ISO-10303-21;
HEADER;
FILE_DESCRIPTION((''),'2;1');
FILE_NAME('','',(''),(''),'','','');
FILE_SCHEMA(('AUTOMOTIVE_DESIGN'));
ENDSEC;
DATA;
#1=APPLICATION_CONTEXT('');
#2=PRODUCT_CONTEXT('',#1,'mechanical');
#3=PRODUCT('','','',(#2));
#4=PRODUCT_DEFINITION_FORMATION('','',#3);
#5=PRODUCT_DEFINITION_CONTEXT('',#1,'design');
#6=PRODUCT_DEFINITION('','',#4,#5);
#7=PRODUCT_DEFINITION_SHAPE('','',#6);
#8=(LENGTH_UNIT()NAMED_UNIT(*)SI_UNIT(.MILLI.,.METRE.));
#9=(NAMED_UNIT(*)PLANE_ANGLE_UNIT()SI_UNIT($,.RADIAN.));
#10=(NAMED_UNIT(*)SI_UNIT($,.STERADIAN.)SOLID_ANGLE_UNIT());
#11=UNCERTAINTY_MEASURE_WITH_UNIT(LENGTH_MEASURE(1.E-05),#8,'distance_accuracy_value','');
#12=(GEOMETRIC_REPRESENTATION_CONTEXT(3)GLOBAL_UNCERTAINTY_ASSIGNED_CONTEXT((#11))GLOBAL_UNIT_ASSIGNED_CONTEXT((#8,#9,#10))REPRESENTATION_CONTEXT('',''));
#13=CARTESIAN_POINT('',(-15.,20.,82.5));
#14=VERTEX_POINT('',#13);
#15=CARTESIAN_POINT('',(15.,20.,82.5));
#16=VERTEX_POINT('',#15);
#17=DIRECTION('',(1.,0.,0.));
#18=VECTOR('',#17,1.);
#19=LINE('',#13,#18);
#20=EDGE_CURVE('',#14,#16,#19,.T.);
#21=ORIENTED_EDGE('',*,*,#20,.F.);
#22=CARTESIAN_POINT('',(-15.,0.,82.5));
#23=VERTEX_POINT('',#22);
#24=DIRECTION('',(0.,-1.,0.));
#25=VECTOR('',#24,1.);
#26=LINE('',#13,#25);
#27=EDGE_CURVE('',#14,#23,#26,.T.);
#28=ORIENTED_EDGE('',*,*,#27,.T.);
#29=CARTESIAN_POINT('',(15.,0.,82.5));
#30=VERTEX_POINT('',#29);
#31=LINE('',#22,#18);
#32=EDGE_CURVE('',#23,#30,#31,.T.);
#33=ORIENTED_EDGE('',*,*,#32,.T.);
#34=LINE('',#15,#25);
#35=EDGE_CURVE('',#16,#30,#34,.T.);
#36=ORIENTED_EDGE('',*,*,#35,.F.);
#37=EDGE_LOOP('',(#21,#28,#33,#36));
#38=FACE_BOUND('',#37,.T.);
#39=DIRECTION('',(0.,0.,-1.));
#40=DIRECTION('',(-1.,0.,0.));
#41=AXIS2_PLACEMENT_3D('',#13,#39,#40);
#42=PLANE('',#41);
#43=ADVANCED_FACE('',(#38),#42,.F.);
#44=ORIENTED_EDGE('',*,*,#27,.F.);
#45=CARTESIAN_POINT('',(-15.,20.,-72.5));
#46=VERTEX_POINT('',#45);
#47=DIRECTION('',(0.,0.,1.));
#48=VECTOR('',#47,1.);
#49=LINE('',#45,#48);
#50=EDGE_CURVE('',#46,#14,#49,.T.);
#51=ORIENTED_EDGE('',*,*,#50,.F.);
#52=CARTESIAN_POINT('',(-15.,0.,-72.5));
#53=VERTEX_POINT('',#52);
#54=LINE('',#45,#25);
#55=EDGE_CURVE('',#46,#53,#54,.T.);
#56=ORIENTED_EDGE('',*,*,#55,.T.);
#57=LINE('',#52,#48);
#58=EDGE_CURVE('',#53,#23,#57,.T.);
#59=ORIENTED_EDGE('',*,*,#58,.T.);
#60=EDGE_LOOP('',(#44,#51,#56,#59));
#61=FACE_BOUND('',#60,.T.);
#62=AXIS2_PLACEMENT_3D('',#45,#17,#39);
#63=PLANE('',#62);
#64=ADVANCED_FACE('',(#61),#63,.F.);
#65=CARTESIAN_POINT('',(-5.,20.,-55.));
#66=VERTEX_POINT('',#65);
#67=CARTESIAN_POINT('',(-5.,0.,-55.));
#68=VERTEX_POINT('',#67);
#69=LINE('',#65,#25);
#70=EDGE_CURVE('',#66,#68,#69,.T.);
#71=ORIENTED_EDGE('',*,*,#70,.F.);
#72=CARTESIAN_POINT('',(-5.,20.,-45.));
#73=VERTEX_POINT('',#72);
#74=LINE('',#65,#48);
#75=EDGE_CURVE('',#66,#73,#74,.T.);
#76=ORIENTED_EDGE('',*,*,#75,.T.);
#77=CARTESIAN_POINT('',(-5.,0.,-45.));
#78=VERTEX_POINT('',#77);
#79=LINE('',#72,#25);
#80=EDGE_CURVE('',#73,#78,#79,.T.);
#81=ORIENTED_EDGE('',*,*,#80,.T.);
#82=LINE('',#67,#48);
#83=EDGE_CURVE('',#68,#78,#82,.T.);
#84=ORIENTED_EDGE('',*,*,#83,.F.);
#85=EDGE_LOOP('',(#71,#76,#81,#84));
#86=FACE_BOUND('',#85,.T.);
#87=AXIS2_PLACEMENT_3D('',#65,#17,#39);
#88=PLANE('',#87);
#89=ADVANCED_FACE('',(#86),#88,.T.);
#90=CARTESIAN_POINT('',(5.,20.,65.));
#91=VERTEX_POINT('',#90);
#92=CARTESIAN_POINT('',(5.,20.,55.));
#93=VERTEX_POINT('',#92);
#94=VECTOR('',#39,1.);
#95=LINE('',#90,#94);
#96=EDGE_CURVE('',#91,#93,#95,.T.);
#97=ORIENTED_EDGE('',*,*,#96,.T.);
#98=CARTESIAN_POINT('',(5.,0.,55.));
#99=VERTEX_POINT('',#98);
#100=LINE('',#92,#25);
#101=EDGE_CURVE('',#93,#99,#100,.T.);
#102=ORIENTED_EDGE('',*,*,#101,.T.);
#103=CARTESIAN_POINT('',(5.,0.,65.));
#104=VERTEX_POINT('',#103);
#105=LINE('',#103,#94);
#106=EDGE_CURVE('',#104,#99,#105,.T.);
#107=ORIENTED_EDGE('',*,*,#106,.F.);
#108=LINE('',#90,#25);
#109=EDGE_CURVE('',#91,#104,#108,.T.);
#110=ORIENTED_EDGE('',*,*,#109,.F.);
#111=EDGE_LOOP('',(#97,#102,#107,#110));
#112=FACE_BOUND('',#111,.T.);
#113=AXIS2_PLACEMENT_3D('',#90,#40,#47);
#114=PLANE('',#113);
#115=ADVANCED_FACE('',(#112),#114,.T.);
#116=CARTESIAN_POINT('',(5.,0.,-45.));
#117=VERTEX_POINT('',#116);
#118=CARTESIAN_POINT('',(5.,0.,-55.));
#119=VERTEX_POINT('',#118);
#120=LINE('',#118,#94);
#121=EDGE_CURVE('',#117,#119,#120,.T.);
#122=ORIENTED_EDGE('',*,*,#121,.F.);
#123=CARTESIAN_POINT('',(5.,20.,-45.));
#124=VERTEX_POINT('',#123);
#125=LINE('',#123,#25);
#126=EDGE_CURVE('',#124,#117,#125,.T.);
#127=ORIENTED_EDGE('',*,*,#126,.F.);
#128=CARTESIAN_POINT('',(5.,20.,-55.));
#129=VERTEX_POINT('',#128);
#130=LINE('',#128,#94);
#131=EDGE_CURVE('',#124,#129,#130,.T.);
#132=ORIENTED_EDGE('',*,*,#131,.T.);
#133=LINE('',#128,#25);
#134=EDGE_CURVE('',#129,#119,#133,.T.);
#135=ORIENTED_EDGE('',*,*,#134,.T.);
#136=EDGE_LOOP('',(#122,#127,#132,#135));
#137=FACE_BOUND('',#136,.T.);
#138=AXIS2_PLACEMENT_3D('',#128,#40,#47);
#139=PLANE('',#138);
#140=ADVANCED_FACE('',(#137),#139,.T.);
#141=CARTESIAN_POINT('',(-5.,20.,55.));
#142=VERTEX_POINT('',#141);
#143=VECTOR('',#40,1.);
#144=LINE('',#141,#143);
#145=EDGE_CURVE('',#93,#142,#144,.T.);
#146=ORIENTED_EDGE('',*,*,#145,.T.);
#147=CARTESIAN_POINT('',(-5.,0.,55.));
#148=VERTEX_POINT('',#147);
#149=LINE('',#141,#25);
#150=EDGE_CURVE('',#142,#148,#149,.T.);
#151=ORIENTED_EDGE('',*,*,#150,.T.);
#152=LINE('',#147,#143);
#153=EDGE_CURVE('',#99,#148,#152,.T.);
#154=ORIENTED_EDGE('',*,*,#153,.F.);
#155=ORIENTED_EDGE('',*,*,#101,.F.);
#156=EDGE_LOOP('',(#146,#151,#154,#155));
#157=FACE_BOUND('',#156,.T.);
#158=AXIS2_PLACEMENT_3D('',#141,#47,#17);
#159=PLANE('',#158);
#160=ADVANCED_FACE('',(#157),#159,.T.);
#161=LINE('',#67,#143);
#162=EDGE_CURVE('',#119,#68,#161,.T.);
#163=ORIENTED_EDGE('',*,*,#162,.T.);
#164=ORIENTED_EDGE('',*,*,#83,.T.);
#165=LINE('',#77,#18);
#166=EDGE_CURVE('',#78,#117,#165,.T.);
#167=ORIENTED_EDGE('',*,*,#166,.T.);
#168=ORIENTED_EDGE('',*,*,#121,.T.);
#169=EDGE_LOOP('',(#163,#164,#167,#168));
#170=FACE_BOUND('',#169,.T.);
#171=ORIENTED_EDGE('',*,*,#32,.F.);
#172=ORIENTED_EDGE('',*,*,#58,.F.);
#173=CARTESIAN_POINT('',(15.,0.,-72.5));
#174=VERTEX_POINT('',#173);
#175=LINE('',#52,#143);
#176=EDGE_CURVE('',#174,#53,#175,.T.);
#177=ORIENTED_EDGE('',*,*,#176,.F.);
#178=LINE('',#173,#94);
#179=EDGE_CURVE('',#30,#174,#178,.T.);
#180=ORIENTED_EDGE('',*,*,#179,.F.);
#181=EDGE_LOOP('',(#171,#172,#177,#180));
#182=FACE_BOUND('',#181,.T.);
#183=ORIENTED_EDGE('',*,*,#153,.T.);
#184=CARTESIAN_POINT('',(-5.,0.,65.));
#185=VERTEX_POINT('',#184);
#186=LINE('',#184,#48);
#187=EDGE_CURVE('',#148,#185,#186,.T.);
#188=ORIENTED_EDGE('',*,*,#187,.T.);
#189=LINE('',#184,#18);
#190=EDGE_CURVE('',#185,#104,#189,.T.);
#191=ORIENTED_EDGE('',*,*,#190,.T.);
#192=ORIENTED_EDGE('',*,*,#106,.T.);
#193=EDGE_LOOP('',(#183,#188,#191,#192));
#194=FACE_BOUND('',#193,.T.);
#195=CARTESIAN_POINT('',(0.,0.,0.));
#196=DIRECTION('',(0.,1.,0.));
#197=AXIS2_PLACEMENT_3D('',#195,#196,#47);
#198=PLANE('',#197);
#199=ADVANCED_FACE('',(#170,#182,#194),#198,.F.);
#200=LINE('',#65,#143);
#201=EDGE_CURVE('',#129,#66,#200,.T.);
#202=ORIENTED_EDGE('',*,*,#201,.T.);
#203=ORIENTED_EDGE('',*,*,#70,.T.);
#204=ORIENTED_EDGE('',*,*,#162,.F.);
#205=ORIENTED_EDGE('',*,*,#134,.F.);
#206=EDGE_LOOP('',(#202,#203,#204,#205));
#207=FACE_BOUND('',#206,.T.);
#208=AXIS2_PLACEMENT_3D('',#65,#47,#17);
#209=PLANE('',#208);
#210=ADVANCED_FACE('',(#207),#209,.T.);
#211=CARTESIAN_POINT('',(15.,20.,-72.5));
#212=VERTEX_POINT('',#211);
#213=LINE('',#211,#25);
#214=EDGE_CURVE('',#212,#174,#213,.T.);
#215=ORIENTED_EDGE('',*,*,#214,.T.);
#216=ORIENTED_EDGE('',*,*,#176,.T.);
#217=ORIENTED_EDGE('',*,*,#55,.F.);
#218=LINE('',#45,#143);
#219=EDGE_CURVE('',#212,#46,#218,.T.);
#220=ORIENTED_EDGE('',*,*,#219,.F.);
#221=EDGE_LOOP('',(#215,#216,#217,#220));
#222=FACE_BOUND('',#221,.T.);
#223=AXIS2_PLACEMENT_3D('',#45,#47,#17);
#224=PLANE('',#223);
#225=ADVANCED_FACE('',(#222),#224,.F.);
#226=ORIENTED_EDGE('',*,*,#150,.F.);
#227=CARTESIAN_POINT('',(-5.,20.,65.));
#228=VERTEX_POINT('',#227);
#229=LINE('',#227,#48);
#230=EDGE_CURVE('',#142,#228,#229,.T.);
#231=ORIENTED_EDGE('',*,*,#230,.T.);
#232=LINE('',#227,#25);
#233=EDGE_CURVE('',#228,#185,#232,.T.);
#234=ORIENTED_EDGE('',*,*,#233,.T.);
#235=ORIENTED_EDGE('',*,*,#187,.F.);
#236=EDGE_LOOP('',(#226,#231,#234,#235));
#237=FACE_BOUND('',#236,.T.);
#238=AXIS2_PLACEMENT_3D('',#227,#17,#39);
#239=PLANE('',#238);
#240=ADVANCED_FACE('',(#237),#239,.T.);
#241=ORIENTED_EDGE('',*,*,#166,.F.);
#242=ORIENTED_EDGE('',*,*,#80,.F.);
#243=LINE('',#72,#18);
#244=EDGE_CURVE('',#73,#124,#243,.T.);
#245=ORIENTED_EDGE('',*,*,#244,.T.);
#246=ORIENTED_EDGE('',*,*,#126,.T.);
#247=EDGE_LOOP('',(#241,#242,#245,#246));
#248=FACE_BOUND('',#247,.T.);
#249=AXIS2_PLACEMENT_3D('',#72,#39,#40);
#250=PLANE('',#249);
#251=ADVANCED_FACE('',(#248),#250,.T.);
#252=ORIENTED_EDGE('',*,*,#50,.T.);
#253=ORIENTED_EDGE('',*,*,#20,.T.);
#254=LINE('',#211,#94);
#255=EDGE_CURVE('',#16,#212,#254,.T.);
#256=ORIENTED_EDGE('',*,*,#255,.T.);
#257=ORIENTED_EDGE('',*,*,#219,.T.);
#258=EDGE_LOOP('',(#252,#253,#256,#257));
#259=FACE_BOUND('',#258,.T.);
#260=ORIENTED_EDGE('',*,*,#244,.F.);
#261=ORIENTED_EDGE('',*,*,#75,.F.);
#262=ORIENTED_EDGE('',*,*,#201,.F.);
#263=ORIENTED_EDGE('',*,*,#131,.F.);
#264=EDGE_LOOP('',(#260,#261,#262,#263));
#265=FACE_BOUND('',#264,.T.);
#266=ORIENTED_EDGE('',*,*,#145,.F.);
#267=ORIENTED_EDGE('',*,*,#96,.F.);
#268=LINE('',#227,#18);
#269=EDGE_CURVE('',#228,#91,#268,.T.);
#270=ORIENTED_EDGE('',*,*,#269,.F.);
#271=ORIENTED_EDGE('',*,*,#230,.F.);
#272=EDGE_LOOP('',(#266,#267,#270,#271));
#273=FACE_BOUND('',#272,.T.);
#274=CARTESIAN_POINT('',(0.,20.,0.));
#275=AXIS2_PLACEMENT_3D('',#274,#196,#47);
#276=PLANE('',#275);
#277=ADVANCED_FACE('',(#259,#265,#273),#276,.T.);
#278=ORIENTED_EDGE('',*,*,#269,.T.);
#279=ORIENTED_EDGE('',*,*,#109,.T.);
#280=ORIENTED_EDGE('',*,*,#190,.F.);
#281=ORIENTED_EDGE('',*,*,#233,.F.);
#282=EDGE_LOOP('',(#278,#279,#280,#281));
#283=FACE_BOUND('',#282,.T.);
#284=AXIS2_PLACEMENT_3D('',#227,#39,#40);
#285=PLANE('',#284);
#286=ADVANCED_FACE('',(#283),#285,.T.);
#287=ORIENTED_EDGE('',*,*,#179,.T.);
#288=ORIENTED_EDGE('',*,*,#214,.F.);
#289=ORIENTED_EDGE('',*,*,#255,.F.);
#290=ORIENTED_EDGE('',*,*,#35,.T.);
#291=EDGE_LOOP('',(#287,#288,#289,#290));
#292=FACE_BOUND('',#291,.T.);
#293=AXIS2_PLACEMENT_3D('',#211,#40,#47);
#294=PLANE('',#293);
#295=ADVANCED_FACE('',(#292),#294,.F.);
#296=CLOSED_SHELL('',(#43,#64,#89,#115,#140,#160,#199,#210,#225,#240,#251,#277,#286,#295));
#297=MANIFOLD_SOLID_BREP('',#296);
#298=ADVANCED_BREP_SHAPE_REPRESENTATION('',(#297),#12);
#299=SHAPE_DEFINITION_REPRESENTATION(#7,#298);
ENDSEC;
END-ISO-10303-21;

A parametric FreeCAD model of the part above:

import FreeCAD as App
import Part
import Sketcher

V = App.Vector


def add_polygon(sketch, points):
    """Adds a closed chain of lines whose ends are joined by coincident constraints."""
    first, n = sketch.GeometryCount, len(points)
    for a, b in zip(points, points[1:] + points[:1]):
        sketch.addGeometry(Part.LineSegment(App.Vector(*a, 0), App.Vector(*b, 0)), False)
    for i in range(n):
        sketch.addConstraint(Sketcher.Constraint("Coincident", first + i, 2, first + (i + 1) % n, 1))

doc = App.newDocument("Part")
body = doc.addObject("PartDesign::Body", "Body")

# Sketch on XZ plane
sketch1 = body.newObject("Sketcher::SketchObject", "Sketch")
sketch1.AttachmentSupport = (doc.getObject("XZ_Plane"), [""])
sketch1.MapMode = "FlatFace"
add_polygon(sketch1, [(-15, -72), (-15, 82), (15, 82), (15, -72)])  # lines 0-3
add_polygon(sketch1, [(5, 65), (-5, 65), (-5, 55), (5, 55)])  # lines 4-7
add_polygon(sketch1, [(5, -45), (-5, -45), (-5, -55), (5, -55)])  # lines 8-11
sketch1.addConstraint([
    Sketcher.Constraint("Vertical", 0),
    Sketcher.Constraint("Horizontal", 1),
    Sketcher.Constraint("Vertical", 2),
    Sketcher.Constraint("Horizontal", 3),
    Sketcher.Constraint("Horizontal", 4),
    Sketcher.Constraint("Vertical", 5),
    Sketcher.Constraint("Horizontal", 6),
    Sketcher.Constraint("Vertical", 7),
    Sketcher.Constraint("Horizontal", 8),
    Sketcher.Constraint("Vertical", 9),
    Sketcher.Constraint("Horizontal", 10),
    Sketcher.Constraint("Vertical", 11),
    Sketcher.Constraint("Symmetric", 6, 2, 9, 2, -1, 1),
    Sketcher.Constraint("Vertical", 5, 2, 8, 2),
    Sketcher.Constraint("Vertical", 7, 2, 10, 2),
    Sketcher.Constraint("Equal", 10, 5),
    Sketcher.Constraint("Equal", 7, 9),
    Sketcher.Constraint("DistanceX", 1, 1, 1, 2, 30.0),
    Sketcher.Constraint("DistanceX", 4, 2, 4, 1, 10.0),
    Sketcher.Constraint("DistanceY", 0, 1, 0, 2, 155.0),
    Sketcher.Constraint("DistanceX", 0, 2, -1, 1, 15.0),
    Sketcher.Constraint("DistanceY", -1, 1, 4, 2, 65.0),
    Sketcher.Constraint("DistanceY", -1, 1, 0, 2, 82.5),
])
pad1 = body.newObject("PartDesign::Pad", "Pad")
pad1.Profile = sketch1
pad1.Length = 20
pad1.Reversed = True

doc.recompute()
